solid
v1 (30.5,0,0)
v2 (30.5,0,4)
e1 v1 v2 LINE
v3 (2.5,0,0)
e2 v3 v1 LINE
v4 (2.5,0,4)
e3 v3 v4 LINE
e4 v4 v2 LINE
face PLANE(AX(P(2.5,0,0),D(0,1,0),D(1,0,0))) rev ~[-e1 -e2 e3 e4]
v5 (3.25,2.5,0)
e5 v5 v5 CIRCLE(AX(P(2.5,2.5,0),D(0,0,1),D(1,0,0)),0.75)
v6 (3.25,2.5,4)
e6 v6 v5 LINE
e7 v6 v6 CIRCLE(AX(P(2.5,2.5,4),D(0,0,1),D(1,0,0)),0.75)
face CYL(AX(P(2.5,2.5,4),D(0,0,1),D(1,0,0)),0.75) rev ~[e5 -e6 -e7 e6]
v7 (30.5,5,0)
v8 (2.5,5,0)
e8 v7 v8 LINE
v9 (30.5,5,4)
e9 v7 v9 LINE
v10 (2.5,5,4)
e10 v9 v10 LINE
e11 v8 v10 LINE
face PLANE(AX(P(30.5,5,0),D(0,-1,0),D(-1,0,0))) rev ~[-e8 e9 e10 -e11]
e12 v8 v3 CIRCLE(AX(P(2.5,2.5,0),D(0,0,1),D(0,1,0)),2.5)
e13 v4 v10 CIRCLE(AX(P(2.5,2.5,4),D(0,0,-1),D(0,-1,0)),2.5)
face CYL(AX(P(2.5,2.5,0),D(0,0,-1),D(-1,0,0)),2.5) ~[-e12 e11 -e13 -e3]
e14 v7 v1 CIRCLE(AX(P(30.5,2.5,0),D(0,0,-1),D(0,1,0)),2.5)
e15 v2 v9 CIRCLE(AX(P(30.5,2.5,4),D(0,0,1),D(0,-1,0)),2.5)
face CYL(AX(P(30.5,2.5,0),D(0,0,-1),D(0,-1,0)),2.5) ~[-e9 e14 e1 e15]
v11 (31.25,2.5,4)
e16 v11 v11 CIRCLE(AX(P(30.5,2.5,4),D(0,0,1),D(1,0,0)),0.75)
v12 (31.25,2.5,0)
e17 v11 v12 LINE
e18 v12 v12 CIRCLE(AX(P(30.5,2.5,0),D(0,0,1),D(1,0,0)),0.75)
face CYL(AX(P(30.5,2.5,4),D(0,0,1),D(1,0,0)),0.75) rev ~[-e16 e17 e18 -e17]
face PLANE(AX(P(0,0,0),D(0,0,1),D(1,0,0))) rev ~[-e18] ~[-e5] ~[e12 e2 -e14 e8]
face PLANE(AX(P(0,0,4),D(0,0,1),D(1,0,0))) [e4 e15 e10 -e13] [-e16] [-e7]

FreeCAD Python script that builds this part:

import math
import FreeCAD as App
import Part
import Sketcher

doc = App.newDocument("Part")
body = doc.addObject("PartDesign::Body", "Body")

sketch1 = body.newObject("Sketcher::SketchObject", "Sketch")
sketch1.AttachmentSupport = (doc.getObject("XY_Plane"), [""])
sketch1.MapMode = "FlatFace"
sketch1.addGeometry(Part.ArcOfCircle(Part.Circle(App.Vector(2.5, 2.5, 0), App.Vector(0, 0, 1), 2.5), math.radians(90), math.radians(270)), False)
sketch1.addGeometry(Part.LineSegment(App.Vector(2.5, 0, 0), App.Vector(30.5, 0, 0)), False)
sketch1.addGeometry(Part.ArcOfCircle(Part.Circle(App.Vector(30.5, 2.5, 0), App.Vector(0, 0, 1), 2.5), math.radians(-90), math.radians(90)), False)
sketch1.addGeometry(Part.LineSegment(App.Vector(30.5, 5, 0), App.Vector(2.5, 5, 0)), False)
sketch1.addConstraint(Sketcher.Constraint("Tangent", 0, 2, 1, 1))
sketch1.addConstraint(Sketcher.Constraint("Tangent", 1, 2, 2, 1))
sketch1.addConstraint(Sketcher.Constraint("Tangent", 2, 2, 3, 1))
sketch1.addConstraint(Sketcher.Constraint("Tangent", 3, 2, 0, 1))
sketch1.addConstraint(Sketcher.Constraint("Horizontal", 1))
sketch1.addConstraint(Sketcher.Constraint("Horizontal", 3))
sketch1.addConstraint(Sketcher.Constraint("PointOnObject", 0, 2, -1))
sketch1.addConstraint(Sketcher.Constraint("Radius", 0, 2.5))
sketch1.addConstraint(Sketcher.Constraint("DistanceX", -1, 1, 0, 3, 2.5))
sketch1.addConstraint(Sketcher.Constraint("DistanceX", 1, 1, 1, 2, 28.0))
pad1 = body.newObject("PartDesign::Pad", "Pad")
pad1.Profile = sketch1
pad1.Length = 4

sketch2 = body.newObject("Sketcher::SketchObject", "Sketch001")
sketch2.AttachmentSupport = (doc.getObject("XY_Plane"), [""])
sketch2.MapMode = "FlatFace"
sketch2.AttachmentOffset = App.Placement(App.Vector(0, 0, 4), App.Rotation())
sketch2.addGeometry(Part.Circle(App.Vector(2.5, 2.5, 0), App.Vector(0, 0, 1), 0.8), False)
sketch2.addGeometry(Part.Circle(App.Vector(30.5, 2.5, 0), App.Vector(0, 0, 1), 0.8), False)
sketch2.addConstraint(Sketcher.Constraint("Equal", 0, 1))
sketch2.addConstraint(Sketcher.Constraint("Horizontal", 0, 3, 1, 3))
sketch2.addConstraint(Sketcher.Constraint("Diameter", 0, 1.5))
sketch2.addConstraint(Sketcher.Constraint("DistanceX", 0, 3, 1, 3, 28.0))
sketch2.addConstraint(Sketcher.Constraint("DistanceX", -1, 1, 0, 3, 2.5))
sketch2.addConstraint(Sketcher.Constraint("DistanceY", -1, 1, 0, 3, 2.5))
pocket1 = body.newObject("PartDesign::Pocket", "Pocket")
pocket1.Profile = sketch2
pocket1.Length = 4

doc.recompute()
